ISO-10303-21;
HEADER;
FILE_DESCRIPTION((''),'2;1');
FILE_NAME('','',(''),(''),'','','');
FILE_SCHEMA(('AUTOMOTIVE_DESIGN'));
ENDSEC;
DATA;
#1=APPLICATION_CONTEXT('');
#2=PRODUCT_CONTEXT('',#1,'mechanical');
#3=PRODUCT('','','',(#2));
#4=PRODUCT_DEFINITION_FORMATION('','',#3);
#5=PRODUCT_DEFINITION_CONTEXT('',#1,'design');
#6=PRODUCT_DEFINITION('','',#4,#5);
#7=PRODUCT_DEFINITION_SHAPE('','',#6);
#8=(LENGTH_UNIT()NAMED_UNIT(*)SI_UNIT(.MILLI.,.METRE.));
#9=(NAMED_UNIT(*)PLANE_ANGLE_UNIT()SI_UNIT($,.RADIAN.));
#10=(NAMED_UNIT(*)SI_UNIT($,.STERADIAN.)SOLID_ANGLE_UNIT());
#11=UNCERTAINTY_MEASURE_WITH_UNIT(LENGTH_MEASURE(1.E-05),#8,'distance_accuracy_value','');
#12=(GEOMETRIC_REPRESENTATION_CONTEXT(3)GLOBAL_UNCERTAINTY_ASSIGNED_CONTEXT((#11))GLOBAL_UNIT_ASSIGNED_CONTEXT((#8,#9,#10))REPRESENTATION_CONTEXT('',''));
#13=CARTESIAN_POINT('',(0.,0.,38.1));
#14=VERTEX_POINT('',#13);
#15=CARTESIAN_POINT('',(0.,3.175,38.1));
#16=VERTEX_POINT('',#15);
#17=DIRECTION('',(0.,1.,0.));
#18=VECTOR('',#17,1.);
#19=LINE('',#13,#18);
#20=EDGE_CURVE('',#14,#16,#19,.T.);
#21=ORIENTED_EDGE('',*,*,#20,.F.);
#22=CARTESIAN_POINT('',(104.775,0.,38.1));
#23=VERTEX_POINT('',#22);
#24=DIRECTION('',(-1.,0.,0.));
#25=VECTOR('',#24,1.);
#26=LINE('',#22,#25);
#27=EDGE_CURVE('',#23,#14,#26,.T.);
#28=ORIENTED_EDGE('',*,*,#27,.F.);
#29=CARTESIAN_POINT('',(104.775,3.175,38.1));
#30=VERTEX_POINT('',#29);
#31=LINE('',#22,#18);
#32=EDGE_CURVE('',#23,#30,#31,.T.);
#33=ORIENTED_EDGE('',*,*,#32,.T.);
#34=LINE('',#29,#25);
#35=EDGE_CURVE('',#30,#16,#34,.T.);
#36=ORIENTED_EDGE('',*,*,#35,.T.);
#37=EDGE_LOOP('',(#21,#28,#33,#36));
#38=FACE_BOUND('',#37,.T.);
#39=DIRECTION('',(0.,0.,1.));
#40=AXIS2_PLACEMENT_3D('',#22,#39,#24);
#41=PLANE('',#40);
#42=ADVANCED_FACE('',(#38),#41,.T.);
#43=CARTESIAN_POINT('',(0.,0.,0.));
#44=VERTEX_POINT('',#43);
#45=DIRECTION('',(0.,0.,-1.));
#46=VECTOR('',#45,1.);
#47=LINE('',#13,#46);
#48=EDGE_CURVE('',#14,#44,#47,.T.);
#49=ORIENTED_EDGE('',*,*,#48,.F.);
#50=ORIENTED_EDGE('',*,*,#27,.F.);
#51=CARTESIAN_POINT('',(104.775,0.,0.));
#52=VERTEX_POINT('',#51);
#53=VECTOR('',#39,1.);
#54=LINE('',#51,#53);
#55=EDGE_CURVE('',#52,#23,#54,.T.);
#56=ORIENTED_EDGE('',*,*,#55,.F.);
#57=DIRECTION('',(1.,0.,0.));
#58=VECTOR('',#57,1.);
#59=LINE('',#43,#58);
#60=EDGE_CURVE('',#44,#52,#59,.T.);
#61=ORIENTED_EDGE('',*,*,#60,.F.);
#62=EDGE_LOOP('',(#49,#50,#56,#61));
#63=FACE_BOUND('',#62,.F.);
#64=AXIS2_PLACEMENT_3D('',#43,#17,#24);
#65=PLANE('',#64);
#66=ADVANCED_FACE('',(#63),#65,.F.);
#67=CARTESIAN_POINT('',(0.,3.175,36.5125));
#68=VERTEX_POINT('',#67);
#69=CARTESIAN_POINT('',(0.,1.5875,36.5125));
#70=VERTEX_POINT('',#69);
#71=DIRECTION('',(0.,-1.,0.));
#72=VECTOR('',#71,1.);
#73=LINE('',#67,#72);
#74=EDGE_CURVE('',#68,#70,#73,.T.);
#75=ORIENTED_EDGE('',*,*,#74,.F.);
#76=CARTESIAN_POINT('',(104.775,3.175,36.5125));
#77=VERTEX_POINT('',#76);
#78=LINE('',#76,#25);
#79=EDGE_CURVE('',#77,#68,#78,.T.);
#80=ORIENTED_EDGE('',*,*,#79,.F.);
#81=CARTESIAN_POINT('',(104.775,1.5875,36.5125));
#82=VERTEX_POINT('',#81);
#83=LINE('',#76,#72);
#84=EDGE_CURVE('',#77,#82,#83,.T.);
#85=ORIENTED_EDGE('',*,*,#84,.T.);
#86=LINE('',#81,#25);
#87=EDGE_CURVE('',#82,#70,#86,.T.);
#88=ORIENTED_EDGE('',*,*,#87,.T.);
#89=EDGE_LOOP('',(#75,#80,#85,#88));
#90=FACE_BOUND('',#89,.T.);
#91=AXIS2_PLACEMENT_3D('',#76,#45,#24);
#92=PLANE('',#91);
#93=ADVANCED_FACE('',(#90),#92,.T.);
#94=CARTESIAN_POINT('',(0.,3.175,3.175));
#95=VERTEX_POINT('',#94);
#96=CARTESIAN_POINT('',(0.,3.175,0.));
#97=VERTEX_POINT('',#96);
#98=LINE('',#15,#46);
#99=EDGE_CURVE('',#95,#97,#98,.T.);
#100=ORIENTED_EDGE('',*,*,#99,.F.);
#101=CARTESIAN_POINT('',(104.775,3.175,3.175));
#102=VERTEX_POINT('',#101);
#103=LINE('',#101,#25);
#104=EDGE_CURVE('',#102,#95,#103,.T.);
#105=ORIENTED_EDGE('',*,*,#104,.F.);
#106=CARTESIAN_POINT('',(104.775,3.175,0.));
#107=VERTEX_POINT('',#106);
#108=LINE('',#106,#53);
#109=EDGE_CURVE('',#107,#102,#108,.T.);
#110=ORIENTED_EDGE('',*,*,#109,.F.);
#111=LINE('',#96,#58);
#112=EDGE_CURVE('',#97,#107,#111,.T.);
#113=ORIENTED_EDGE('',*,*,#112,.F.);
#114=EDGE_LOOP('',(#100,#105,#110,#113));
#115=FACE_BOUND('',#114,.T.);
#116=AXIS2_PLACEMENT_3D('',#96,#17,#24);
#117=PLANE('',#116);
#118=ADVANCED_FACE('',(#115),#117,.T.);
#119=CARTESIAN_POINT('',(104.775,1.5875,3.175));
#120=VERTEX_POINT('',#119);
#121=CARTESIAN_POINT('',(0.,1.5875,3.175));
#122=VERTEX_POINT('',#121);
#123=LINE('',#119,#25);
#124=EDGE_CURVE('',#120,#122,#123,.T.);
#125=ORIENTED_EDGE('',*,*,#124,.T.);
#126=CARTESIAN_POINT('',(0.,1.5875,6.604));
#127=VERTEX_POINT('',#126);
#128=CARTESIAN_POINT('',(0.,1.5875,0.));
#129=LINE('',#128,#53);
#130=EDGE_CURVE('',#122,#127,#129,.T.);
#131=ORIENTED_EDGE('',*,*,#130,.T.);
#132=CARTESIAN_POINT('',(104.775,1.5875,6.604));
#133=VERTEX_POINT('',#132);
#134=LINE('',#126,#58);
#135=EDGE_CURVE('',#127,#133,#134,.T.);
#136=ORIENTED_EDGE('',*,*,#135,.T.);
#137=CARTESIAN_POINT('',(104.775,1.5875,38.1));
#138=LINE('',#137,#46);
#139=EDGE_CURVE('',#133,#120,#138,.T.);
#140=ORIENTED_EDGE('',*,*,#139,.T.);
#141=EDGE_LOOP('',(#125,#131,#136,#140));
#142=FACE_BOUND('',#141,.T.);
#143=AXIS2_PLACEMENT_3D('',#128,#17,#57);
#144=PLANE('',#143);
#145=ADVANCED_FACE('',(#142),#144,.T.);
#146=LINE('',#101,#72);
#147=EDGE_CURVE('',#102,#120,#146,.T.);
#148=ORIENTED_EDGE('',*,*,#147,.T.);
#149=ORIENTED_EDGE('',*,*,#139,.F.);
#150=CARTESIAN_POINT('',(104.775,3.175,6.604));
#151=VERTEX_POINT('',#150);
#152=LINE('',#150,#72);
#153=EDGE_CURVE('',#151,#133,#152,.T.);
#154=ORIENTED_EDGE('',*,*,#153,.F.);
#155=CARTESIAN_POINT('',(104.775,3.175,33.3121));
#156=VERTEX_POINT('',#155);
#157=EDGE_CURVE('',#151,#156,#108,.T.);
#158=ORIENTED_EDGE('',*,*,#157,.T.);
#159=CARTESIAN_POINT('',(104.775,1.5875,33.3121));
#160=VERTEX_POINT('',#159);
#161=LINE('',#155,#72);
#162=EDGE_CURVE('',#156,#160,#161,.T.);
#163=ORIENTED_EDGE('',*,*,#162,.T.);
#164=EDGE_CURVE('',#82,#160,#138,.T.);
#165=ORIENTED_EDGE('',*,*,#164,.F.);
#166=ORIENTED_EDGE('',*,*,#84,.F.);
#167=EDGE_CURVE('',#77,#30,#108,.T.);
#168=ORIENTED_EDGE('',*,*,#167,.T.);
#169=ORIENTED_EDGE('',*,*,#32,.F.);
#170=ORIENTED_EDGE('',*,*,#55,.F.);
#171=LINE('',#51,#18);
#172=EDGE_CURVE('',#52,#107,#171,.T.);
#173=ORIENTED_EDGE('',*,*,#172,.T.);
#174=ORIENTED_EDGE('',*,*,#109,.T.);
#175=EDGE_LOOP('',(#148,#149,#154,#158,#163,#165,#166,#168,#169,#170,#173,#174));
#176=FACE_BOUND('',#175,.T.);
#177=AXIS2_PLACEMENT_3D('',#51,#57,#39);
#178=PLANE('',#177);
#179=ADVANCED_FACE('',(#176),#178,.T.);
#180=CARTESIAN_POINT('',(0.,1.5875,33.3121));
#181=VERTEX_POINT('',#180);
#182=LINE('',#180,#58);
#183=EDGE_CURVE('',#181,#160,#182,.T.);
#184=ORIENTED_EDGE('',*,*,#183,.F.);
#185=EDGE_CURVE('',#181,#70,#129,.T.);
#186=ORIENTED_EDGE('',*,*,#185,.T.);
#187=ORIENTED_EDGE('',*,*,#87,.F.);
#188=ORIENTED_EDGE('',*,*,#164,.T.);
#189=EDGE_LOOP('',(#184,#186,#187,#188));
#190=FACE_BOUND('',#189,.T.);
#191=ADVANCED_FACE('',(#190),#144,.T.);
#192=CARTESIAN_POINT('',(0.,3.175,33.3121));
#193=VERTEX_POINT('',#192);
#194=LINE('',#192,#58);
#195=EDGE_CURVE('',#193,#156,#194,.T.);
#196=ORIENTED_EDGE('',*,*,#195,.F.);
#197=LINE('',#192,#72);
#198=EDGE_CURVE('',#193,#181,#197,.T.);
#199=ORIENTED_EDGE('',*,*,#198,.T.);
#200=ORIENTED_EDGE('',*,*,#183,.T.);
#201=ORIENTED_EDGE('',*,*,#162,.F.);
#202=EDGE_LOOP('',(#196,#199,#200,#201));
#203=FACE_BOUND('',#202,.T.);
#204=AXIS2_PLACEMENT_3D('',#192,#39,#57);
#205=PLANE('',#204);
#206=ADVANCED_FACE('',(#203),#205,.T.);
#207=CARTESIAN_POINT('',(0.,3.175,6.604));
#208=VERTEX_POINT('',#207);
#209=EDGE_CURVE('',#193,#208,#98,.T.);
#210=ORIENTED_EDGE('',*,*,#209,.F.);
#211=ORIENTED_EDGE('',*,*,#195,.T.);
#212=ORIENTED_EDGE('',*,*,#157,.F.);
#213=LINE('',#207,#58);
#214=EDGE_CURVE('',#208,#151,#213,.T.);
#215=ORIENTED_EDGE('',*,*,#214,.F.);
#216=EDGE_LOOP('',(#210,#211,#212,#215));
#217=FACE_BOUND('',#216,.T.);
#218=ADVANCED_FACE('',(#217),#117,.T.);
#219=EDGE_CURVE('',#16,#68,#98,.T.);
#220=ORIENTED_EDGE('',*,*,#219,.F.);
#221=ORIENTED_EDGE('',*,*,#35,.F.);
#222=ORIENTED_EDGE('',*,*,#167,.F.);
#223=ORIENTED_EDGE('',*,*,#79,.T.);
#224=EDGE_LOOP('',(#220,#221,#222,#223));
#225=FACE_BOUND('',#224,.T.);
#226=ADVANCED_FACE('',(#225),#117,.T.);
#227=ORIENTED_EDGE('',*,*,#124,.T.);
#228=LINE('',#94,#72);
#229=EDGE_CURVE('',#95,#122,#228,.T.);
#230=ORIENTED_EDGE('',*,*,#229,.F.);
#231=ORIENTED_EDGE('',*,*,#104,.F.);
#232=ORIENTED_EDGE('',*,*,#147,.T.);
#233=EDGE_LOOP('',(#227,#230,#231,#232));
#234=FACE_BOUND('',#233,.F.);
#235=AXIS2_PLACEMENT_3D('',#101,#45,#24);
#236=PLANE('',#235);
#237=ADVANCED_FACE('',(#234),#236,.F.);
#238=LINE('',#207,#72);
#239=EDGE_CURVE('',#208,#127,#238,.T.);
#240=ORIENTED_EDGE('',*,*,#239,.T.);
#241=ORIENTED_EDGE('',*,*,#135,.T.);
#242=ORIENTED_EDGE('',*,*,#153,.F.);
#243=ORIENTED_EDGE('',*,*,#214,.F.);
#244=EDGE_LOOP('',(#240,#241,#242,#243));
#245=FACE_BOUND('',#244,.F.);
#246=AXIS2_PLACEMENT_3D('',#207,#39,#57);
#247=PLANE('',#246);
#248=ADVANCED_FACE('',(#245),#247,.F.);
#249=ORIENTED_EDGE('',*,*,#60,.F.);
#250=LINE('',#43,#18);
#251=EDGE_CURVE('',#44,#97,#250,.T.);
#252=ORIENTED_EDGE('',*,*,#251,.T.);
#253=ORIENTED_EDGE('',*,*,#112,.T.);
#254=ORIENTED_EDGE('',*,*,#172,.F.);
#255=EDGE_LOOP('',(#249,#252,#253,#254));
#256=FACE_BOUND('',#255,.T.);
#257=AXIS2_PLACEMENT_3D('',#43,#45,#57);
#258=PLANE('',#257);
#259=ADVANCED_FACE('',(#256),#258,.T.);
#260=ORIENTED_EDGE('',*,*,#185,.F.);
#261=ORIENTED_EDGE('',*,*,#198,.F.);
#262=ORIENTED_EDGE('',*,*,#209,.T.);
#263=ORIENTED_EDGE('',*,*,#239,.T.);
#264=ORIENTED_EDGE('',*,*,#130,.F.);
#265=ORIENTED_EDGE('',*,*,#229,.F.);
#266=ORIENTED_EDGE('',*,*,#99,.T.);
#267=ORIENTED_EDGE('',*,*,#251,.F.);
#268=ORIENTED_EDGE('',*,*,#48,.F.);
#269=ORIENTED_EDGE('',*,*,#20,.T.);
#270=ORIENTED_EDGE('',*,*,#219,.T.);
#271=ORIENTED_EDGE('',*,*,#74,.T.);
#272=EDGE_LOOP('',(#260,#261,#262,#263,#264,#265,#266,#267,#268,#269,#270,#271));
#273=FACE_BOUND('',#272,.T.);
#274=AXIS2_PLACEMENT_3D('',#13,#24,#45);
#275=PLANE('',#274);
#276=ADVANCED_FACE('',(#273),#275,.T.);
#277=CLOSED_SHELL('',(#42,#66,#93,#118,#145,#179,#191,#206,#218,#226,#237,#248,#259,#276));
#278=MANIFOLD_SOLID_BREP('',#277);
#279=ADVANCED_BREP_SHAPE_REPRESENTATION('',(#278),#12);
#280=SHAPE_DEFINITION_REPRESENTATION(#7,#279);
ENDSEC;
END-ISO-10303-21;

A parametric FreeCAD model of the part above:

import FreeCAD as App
import Part
import Sketcher
Q = App.Units.Quantity

doc = App.newDocument("Part")
params = doc.addObject("Spreadsheet::Sheet", "Params")
for row, (alias, value) in enumerate([
    ("sketch1_height", "1.5 in"),
    ("sketch1_width", "4.125 in"),
    ("pad1_length", "0.125 in"),
    ("sketch2_height", "0.135 in"),
    ("sketch2_height2", "0.126 in"),
    ("sketch2_width", "4.125 in"),
    ("pocket1_length", "0.0625 in"),
], start=1):
    params.set(f"A{row}", alias)
    params.set(f"B{row}", "=" + value)
    params.setAlias(f"B{row}", alias)

body = doc.addObject("PartDesign::Body", "Body")

sketch1 = doc.addObject("Sketcher::SketchObject", "Sketch")
body.addObject(sketch1)
sketch1.AttachmentSupport = (doc.XZ_Plane, [""])
sketch1.MapMode = "FlatFace"
sketch1.addGeometry(Part.LineSegment(App.Vector(105, 0, 0), App.Vector(0, 0, 0)), False)
sketch1.addGeometry(Part.LineSegment(App.Vector(0, 0, 0), App.Vector(0, 38, 0)), False)
sketch1.addGeometry(Part.LineSegment(App.Vector(0, 38, 0), App.Vector(105, 38, 0)), False)
sketch1.addGeometry(Part.LineSegment(App.Vector(105, 38, 0), App.Vector(105, 0, 0)), False)
sketch1.addConstraint(Sketcher.Constraint("Coincident", 0, 2, 1, 1))
sketch1.addConstraint(Sketcher.Constraint("Coincident", 1, 2, 2, 1))
sketch1.addConstraint(Sketcher.Constraint("Coincident", 2, 2, 3, 1))
sketch1.addConstraint(Sketcher.Constraint("Coincident", 3, 2, 0, 1))
sketch1.addConstraint(Sketcher.Constraint("Horizontal", 0))
sketch1.addConstraint(Sketcher.Constraint("Vertical", 1))
sketch1.addConstraint(Sketcher.Constraint("Horizontal", 2))
sketch1.addConstraint(Sketcher.Constraint("Vertical", 3))
sketch1.addConstraint(Sketcher.Constraint("Coincident", 0, 2, -1, 1))
sketch1.addConstraint(Sketcher.Constraint("DistanceY", 1, 1, 1, 2, Q("1.5 in")))
sketch1.addConstraint(Sketcher.Constraint("DistanceX", 0, 2, 0, 1, Q("4.125 in")))
sketch1.setExpression("Constraints[9]", "Params.sketch1_height")
sketch1.setExpression("Constraints[10]", "Params.sketch1_width")
pad1 = doc.addObject("PartDesign::Pad", "Pad")
body.addObject(pad1)
pad1.Profile = sketch1
pad1.setExpression("Length", "Params.pad1_length")
pad1.Reversed = True

sketch2 = doc.addObject("Sketcher::SketchObject", "Sketch001")
body.addObject(sketch2)
sketch2.AttachmentSupport = (doc.XZ_Plane, [""])
sketch2.MapMode = "FlatFace"
sketch2.AttachmentOffset = App.Placement(App.Vector(0, 0, -0.125 * 25.4), App.Rotation())
sketch2.addGeometry(Part.LineSegment(App.Vector(104.8, 3.2, 0), App.Vector(0, 3.2, 0)), False)
sketch2.addGeometry(Part.LineSegment(App.Vector(0, 3.2, 0), App.Vector(0, 6.6, 0)), False)
sketch2.addGeometry(Part.LineSegment(App.Vector(0, 6.6, 0), App.Vector(104.8, 6.6, 0)), False)
sketch2.addGeometry(Part.LineSegment(App.Vector(104.8, 6.6, 0), App.Vector(104.8, 3.2, 0)), False)
sketch2.addGeometry(Part.LineSegment(App.Vector(104.8, 33.3, 0), App.Vector(0, 33.3, 0)), False)
sketch2.addGeometry(Part.LineSegment(App.Vector(0, 33.3, 0), App.Vector(0, 36.5, 0)), False)
sketch2.addGeometry(Part.LineSegment(App.Vector(0, 36.5, 0), App.Vector(104.8, 36.5, 0)), False)
sketch2.addGeometry(Part.LineSegment(App.Vector(104.8, 36.5, 0), App.Vector(104.8, 33.3, 0)), False)
sketch2.addConstraint(Sketcher.Constraint("Coincident", 0, 2, 1, 1))
sketch2.addConstraint(Sketcher.Constraint("Coincident", 1, 2, 2, 1))
sketch2.addConstraint(Sketcher.Constraint("Coincident", 2, 2, 3, 1))
sketch2.addConstraint(Sketcher.Constraint("Coincident", 3, 2, 0, 1))
sketch2.addConstraint(Sketcher.Constraint("Coincident", 4, 2, 5, 1))
sketch2.addConstraint(Sketcher.Constraint("Coincident", 5, 2, 6, 1))
sketch2.addConstraint(Sketcher.Constraint("Coincident", 6, 2, 7, 1))
sketch2.addConstraint(Sketcher.Constraint("Coincident", 7, 2, 4, 1))
sketch2.addConstraint(Sketcher.Constraint("Horizontal", 0))
sketch2.addConstraint(Sketcher.Constraint("Vertical", 1))
sketch2.addConstraint(Sketcher.Constraint("Horizontal", 2))
sketch2.addConstraint(Sketcher.Constraint("Vertical", 3))
sketch2.addConstraint(Sketcher.Constraint("Horizontal", 4))
sketch2.addConstraint(Sketcher.Constraint("Vertical", 5))
sketch2.addConstraint(Sketcher.Constraint("Horizontal", 6))
sketch2.addConstraint(Sketcher.Constraint("Vertical", 7))
sketch2.addConstraint(Sketcher.Constraint("PointOnObject", 0, 2, -2))
sketch2.addConstraint(Sketcher.Constraint("PointOnObject", 4, 2, -2))
sketch2.addConstraint(Sketcher.Constraint("Vertical", 3, 2, 6, 2))
sketch2.addConstraint(Sketcher.Constraint("DistanceY", 1, 1, 1, 2, Q("0.135 in")))
sketch2.addConstraint(Sketcher.Constraint("DistanceY", 5, 1, 5, 2, Q("0.126 in")))
sketch2.addConstraint(Sketcher.Constraint("DistanceY", -1, 1, 0, 2, Q("0.125 in")))
sketch2.addConstraint(Sketcher.Constraint("DistanceX", 0, 2, 0, 1, Q("4.125 in")))
sketch2.addConstraint(Sketcher.Constraint("DistanceY", -1, 1, 5, 2, Q("1.4375 in")))
sketch2.setExpression("Constraints[19]", "Params.sketch2_height")
sketch2.setExpression("Constraints[20]", "Params.sketch2_height2")
sketch2.setExpression("Constraints[22]", "Params.sketch2_width")
pocket1 = doc.addObject("PartDesign::Pocket", "Pocket")
body.addObject(pocket1)
pocket1.Profile = sketch2
pocket1.setExpression("Length", "Params.pocket1_length")
pocket1.Reversed = True

doc.recompute()
